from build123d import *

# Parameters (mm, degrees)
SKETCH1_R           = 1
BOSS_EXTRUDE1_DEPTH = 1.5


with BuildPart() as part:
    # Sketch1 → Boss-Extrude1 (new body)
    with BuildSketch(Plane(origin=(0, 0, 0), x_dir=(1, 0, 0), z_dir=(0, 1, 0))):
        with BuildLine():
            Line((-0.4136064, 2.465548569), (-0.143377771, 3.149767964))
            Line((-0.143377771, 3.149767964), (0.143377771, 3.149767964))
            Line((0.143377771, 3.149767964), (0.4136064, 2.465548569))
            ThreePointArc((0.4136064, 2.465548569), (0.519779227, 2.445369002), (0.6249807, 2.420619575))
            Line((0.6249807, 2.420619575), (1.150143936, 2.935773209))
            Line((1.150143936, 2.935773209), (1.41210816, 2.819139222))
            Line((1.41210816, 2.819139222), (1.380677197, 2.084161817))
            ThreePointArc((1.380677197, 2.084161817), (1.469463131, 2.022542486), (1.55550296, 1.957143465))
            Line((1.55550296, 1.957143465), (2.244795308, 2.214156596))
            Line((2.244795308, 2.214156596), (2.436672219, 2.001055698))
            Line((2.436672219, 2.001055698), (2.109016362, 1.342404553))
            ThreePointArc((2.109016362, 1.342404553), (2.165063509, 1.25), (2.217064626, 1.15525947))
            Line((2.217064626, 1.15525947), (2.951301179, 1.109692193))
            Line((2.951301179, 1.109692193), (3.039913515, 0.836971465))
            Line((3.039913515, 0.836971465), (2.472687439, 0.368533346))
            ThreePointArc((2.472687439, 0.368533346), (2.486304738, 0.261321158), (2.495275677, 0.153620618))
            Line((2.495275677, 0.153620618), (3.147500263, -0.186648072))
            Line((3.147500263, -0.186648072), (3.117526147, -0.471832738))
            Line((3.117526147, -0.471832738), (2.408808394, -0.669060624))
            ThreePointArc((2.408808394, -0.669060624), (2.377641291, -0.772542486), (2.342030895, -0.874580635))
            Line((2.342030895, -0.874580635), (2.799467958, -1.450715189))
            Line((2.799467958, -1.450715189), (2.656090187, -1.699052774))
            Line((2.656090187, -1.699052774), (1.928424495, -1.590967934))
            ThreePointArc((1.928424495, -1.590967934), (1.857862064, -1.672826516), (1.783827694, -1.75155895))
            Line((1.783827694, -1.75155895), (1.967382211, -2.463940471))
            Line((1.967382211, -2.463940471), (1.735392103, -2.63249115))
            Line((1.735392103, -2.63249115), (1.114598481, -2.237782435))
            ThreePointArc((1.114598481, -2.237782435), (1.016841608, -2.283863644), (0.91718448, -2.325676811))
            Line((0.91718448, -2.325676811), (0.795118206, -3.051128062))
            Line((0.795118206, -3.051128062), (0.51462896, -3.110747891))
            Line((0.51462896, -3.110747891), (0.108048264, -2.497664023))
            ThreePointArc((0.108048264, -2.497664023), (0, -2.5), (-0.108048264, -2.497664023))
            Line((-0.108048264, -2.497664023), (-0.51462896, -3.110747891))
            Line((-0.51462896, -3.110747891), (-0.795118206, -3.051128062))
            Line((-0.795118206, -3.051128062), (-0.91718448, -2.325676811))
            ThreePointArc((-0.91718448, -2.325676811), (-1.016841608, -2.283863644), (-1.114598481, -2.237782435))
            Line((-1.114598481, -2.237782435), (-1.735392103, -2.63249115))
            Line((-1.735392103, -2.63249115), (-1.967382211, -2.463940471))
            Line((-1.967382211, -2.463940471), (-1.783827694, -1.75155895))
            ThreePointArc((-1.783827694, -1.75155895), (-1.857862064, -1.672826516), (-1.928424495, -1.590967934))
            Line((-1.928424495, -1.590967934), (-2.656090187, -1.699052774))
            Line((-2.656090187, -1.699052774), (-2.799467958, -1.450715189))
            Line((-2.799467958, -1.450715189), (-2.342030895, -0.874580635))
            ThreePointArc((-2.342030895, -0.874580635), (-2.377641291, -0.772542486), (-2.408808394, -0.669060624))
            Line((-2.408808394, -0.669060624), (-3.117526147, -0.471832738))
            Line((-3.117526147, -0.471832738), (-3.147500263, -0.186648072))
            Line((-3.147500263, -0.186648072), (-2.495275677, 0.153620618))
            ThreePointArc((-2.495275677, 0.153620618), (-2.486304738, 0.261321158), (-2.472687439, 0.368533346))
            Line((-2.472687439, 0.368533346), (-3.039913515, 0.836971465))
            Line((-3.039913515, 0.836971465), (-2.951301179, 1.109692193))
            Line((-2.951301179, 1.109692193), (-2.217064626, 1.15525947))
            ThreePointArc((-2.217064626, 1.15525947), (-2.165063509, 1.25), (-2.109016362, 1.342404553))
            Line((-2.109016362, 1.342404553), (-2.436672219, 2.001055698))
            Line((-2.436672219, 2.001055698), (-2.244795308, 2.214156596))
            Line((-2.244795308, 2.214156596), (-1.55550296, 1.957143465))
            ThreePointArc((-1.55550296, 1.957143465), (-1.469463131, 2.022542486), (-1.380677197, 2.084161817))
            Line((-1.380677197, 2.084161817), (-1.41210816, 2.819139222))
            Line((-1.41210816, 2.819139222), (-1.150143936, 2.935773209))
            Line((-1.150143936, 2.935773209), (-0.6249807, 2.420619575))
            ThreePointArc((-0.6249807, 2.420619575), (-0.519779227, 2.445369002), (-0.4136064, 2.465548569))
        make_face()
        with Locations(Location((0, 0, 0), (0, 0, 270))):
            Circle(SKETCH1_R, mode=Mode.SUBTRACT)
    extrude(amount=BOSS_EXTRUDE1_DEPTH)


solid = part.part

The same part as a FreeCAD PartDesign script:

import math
import FreeCAD as App
import Part
import Sketcher
from FreeCAD import Vector
Q = App.Units.Quantity

doc = App.newDocument("Part")
body = doc.addObject("PartDesign::Body", "Body")

# Sketch on XZ plane
sketch1 = doc.addObject("Sketcher::SketchObject", "Sketch")
body.addObject(sketch1)
sketch1.AttachmentSupport = (doc.XZ_Plane, [""])
sketch1.MapMode = "FlatFace"
sketch1.addGeometry(Part.LineSegment(Vector(-0.143378, -3.149768, 0), Vector(-0.413606, -2.465549, 0)), False)
sketch1.addGeometry(Part.ArcOfCircle(Part.Circle(Vector(0, 0, 0), Vector(0, 0, 1), 2.5), math.radians(-104.477055), math.radians(-99.522945)), False)
sketch1.addGeometry(Part.LineSegment(Vector(-0.624981, -2.42062, 0), Vector(-1.150144, -2.935773, 0)), False)
sketch1.addGeometry(Part.LineSegment(Vector(-1.150144, -2.935773, 0), Vector(-1.412108, -2.819139, 0)), False)
sketch1.addGeometry(Part.LineSegment(Vector(-1.412108, -2.819139, 0), Vector(-1.380677, -2.084162, 0)), False)
sketch1.addGeometry(Part.ArcOfCircle(Part.Circle(Vector(0, 0, 0), Vector(0, 0, 1), 2.5), math.radians(-128.477055), math.radians(-123.522945)), False)
sketch1.addGeometry(Part.LineSegment(Vector(-1.555503, -1.957143, 0), Vector(-2.244795, -2.214157, 0)), False)
sketch1.addGeometry(Part.LineSegment(Vector(-2.244795, -2.214157, 0), Vector(-2.436672, -2.001056, 0)), False)
sketch1.addGeometry(Part.LineSegment(Vector(-2.436672, -2.001056, 0), Vector(-2.109016, -1.342405, 0)), False)
sketch1.addGeometry(Part.ArcOfCircle(Part.Circle(Vector(0, 0, 0), Vector(0, 0, 1), 2.5), math.radians(-152.477055), math.radians(-147.522945)), False)
sketch1.addGeometry(Part.LineSegment(Vector(-2.217065, -1.155259, 0), Vector(-2.951301, -1.109692, 0)), False)
sketch1.addGeometry(Part.LineSegment(Vector(-2.951301, -1.109692, 0), Vector(-3.039914, -0.836971, 0)), False)
sketch1.addGeometry(Part.LineSegment(Vector(-3.039914, -0.836971, 0), Vector(-2.472687, -0.368533, 0)), False)
sketch1.addGeometry(Part.ArcOfCircle(Part.Circle(Vector(0, 0, 0), Vector(0, 0, 1), 2.5), math.radians(-176.477055), math.radians(-171.522945)), False)
sketch1.addGeometry(Part.LineSegment(Vector(-2.495276, -0.153621, 0), Vector(-3.1475, 0.186648, 0)), False)
sketch1.addGeometry(Part.LineSegment(Vector(-3.1475, 0.186648, 0), Vector(-3.117526, 0.471833, 0)), False)
sketch1.addGeometry(Part.LineSegment(Vector(-3.117526, 0.471833, 0), Vector(-2.408808, 0.669061, 0)), False)
sketch1.addGeometry(Part.ArcOfCircle(Part.Circle(Vector(0, 0, 0), Vector(0, 0, 1), 2.499999), math.radians(159.522944), math.radians(164.477056)), False)
sketch1.addGeometry(Part.LineSegment(Vector(-2.342031, 0.874581, 0), Vector(-2.799468, 1.450715, 0)), False)
sketch1.addGeometry(Part.LineSegment(Vector(-2.799468, 1.450715, 0), Vector(-2.65609, 1.699053, 0)), False)
sketch1.addGeometry(Part.LineSegment(Vector(-2.65609, 1.699053, 0), Vector(-1.928424, 1.590968, 0)), False)
sketch1.addGeometry(Part.ArcOfCircle(Part.Circle(Vector(0, 0, 0), Vector(0, 0, 1), 2.499999), math.radians(135.522944), math.radians(140.477056)), False)
sketch1.addGeometry(Part.LineSegment(Vector(-1.783828, 1.751559, 0), Vector(-1.967382, 2.46394, 0)), False)
sketch1.addGeometry(Part.LineSegment(Vector(-1.967382, 2.46394, 0), Vector(-1.735392, 2.632491, 0)), False)
sketch1.addGeometry(Part.LineSegment(Vector(-1.735392, 2.632491, 0), Vector(-1.114598, 2.237782, 0)), False)
sketch1.addGeometry(Part.ArcOfCircle(Part.Circle(Vector(0, 0, 0), Vector(0, 0, 1), 2.5), math.radians(111.522945), math.radians(116.477055)), False)
sketch1.addGeometry(Part.LineSegment(Vector(-0.917184, 2.325677, 0), Vector(-0.795118, 3.051128, 0)), False)
sketch1.addGeometry(Part.LineSegment(Vector(-0.795118, 3.051128, 0), Vector(-0.514629, 3.110748, 0)), False)
sketch1.addGeometry(Part.LineSegment(Vector(-0.514629, 3.110748, 0), Vector(-0.108048, 2.497664, 0)), False)
sketch1.addGeometry(Part.ArcOfCircle(Part.Circle(Vector(0, 0, 0), Vector(0, 0, 1), 2.5), math.radians(87.522944), math.radians(92.477056)), False)
sketch1.addGeometry(Part.LineSegment(Vector(0.108048, 2.497664, 0), Vector(0.514629, 3.110748, 0)), False)
sketch1.addGeometry(Part.LineSegment(Vector(0.514629, 3.110748, 0), Vector(0.795118, 3.051128, 0)), False)
sketch1.addGeometry(Part.LineSegment(Vector(0.795118, 3.051128, 0), Vector(0.917184, 2.325677, 0)), False)
sketch1.addGeometry(Part.ArcOfCircle(Part.Circle(Vector(0, 0, 0), Vector(0, 0, 1), 2.5), math.radians(63.522945), math.radians(68.477055)), False)
sketch1.addGeometry(Part.LineSegment(Vector(1.114598, 2.237782, 0), Vector(1.735392, 2.632491, 0)), False)
sketch1.addGeometry(Part.LineSegment(Vector(1.735392, 2.632491, 0), Vector(1.967382, 2.46394, 0)), False)
sketch1.addGeometry(Part.LineSegment(Vector(1.967382, 2.46394, 0), Vector(1.783828, 1.751559, 0)), False)
sketch1.addGeometry(Part.ArcOfCircle(Part.Circle(Vector(0, 0, 0), Vector(0, 0, 1), 2.499999), math.radians(39.522944), math.radians(44.477056)), False)
sketch1.addGeometry(Part.LineSegment(Vector(1.928424, 1.590968, 0), Vector(2.65609, 1.699053, 0)), False)
sketch1.addGeometry(Part.LineSegment(Vector(2.65609, 1.699053, 0), Vector(2.799468, 1.450715, 0)), False)
sketch1.addGeometry(Part.LineSegment(Vector(2.799468, 1.450715, 0), Vector(2.342031, 0.874581, 0)), False)
sketch1.addGeometry(Part.ArcOfCircle(Part.Circle(Vector(0, 0, 0), Vector(0, 0, 1), 2.499999), math.radians(15.522944), math.radians(20.477056)), False)
sketch1.addGeometry(Part.LineSegment(Vector(2.408808, 0.669061, 0), Vector(3.117526, 0.471833, 0)), False)
sketch1.addGeometry(Part.LineSegment(Vector(3.117526, 0.471833, 0), Vector(3.1475, 0.186648, 0)), False)
sketch1.addGeometry(Part.LineSegment(Vector(3.1475, 0.186648, 0), Vector(2.495276, -0.153621, 0)), False)
sketch1.addGeometry(Part.ArcOfCircle(Part.Circle(Vector(0, 0, 0), Vector(0, 0, 1), 2.5), math.radians(-8.477055), math.radians(-3.522945)), False)
sketch1.addGeometry(Part.LineSegment(Vector(2.472687, -0.368533, 0), Vector(3.039914, -0.836971, 0)), False)
sketch1.addGeometry(Part.LineSegment(Vector(3.039914, -0.836971, 0), Vector(2.951301, -1.109692, 0)), False)
sketch1.addGeometry(Part.LineSegment(Vector(2.951301, -1.109692, 0), Vector(2.217065, -1.155259, 0)), False)
sketch1.addGeometry(Part.ArcOfCircle(Part.Circle(Vector(0, 0, 0), Vector(0, 0, 1), 2.5), math.radians(-32.477055), math.radians(-27.522945)), False)
sketch1.addGeometry(Part.LineSegment(Vector(2.109016, -1.342405, 0), Vector(2.436672, -2.001056, 0)), False)
sketch1.addGeometry(Part.LineSegment(Vector(2.436672, -2.001056, 0), Vector(2.244795, -2.214157, 0)), False)
sketch1.addGeometry(Part.LineSegment(Vector(2.244795, -2.214157, 0), Vector(1.555503, -1.957143, 0)), False)
sketch1.addGeometry(Part.ArcOfCircle(Part.Circle(Vector(0, 0, 0), Vector(0, 0, 1), 2.5), math.radians(-56.477055), math.radians(-51.522945)), False)
sketch1.addGeometry(Part.LineSegment(Vector(1.380677, -2.084162, 0), Vector(1.412108, -2.819139, 0)), False)
sketch1.addGeometry(Part.LineSegment(Vector(1.412108, -2.819139, 0), Vector(1.150144, -2.935773, 0)), False)
sketch1.addGeometry(Part.LineSegment(Vector(1.150144, -2.935773, 0), Vector(0.624981, -2.42062, 0)), False)
sketch1.addGeometry(Part.ArcOfCircle(Part.Circle(Vector(0, 0, 0), Vector(0, 0, 1), 2.5), math.radians(-80.477055), math.radians(-75.522945)), False)
sketch1.addGeometry(Part.LineSegment(Vector(0.413606, -2.465549, 0), Vector(0.143378, -3.149768, 0)), False)
sketch1.addGeometry(Part.LineSegment(Vector(0.143378, -3.149768, 0), Vector(-0.143378, -3.149768, 0)), False)
sketch1.addGeometry(Part.Circle(Vector(0, 0, 0), Vector(0, 0, 1), 1), False)
sketch1.addConstraint(Sketcher.Constraint("Coincident", 0, 2, 1, 2))
sketch1.addConstraint(Sketcher.Constraint("Coincident", 1, 1, 2, 1))
sketch1.addConstraint(Sketcher.Constraint("Coincident", 2, 2, 3, 1))
sketch1.addConstraint(Sketcher.Constraint("Coincident", 3, 2, 4, 1))
sketch1.addConstraint(Sketcher.Constraint("Coincident", 4, 2, 5, 2))
sketch1.addConstraint(Sketcher.Constraint("Coincident", 5, 1, 6, 1))
sketch1.addConstraint(Sketcher.Constraint("Coincident", 6, 2, 7, 1))
sketch1.addConstraint(Sketcher.Constraint("Coincident", 7, 2, 8, 1))
sketch1.addConstraint(Sketcher.Constraint("Coincident", 8, 2, 9, 2))
sketch1.addConstraint(Sketcher.Constraint("Coincident", 9, 1, 10, 1))
sketch1.addConstraint(Sketcher.Constraint("Coincident", 10, 2, 11, 1))
sketch1.addConstraint(Sketcher.Constraint("Coincident", 11, 2, 12, 1))
sketch1.addConstraint(Sketcher.Constraint("Coincident", 12, 2, 13, 2))
sketch1.addConstraint(Sketcher.Constraint("Coincident", 13, 1, 14, 1))
sketch1.addConstraint(Sketcher.Constraint("Coincident", 14, 2, 15, 1))
sketch1.addConstraint(Sketcher.Constraint("Coincident", 15, 2, 16, 1))
sketch1.addConstraint(Sketcher.Constraint("Coincident", 16, 2, 17, 2))
sketch1.addConstraint(Sketcher.Constraint("Coincident", 17, 1, 18, 1))
sketch1.addConstraint(Sketcher.Constraint("Coincident", 18, 2, 19, 1))
sketch1.addConstraint(Sketcher.Constraint("Coincident", 19, 2, 20, 1))
sketch1.addConstraint(Sketcher.Constraint("Coincident", 20, 2, 21, 2))
sketch1.addConstraint(Sketcher.Constraint("Coincident", 21, 1, 22, 1))
sketch1.addConstraint(Sketcher.Constraint("Coincident", 22, 2, 23, 1))
sketch1.addConstraint(Sketcher.Constraint("Coincident", 23, 2, 24, 1))
sketch1.addConstraint(Sketcher.Constraint("Coincident", 24, 2, 25, 2))
sketch1.addConstraint(Sketcher.Constraint("Coincident", 25, 1, 26, 1))
sketch1.addConstraint(Sketcher.Constraint("Coincident", 26, 2, 27, 1))
sketch1.addConstraint(Sketcher.Constraint("Coincident", 27, 2, 28, 1))
sketch1.addConstraint(Sketcher.Constraint("Coincident", 28, 2, 29, 2))
sketch1.addConstraint(Sketcher.Constraint("Coincident", 29, 1, 30, 1))
sketch1.addConstraint(Sketcher.Constraint("Coincident", 30, 2, 31, 1))
sketch1.addConstraint(Sketcher.Constraint("Coincident", 31, 2, 32, 1))
sketch1.addConstraint(Sketcher.Constraint("Coincident", 32, 2, 33, 2))
sketch1.addConstraint(Sketcher.Constraint("Coincident", 33, 1, 34, 1))
sketch1.addConstraint(Sketcher.Constraint("Coincident", 34, 2, 35, 1))
sketch1.addConstraint(Sketcher.Constraint("Coincident", 35, 2, 36, 1))
sketch1.addConstraint(Sketcher.Constraint("Coincident", 36, 2, 37, 2))
sketch1.addConstraint(Sketcher.Constraint("Coincident", 37, 1, 38, 1))
sketch1.addConstraint(Sketcher.Constraint("Coincident", 38, 2, 39, 1))
sketch1.addConstraint(Sketcher.Constraint("Coincident", 39, 2, 40, 1))
sketch1.addConstraint(Sketcher.Constraint("Coincident", 40, 2, 41, 2))
sketch1.addConstraint(Sketcher.Constraint("Coincident", 41, 1, 42, 1))
sketch1.addConstraint(Sketcher.Constraint("Coincident", 42, 2, 43, 1))
sketch1.addConstraint(Sketcher.Constraint("Coincident", 43, 2, 44, 1))
sketch1.addConstraint(Sketcher.Constraint("Coincident", 44, 2, 45, 2))
sketch1.addConstraint(Sketcher.Constraint("Coincident", 45, 1, 46, 1))
sketch1.addConstraint(Sketcher.Constraint("Coincident", 46, 2, 47, 1))
sketch1.addConstraint(Sketcher.Constraint("Coincident", 47, 2, 48, 1))
sketch1.addConstraint(Sketcher.Constraint("Coincident", 48, 2, 49, 2))
sketch1.addConstraint(Sketcher.Constraint("Coincident", 49, 1, 50, 1))
sketch1.addConstraint(Sketcher.Constraint("Coincident", 50, 2, 51, 1))
sketch1.addConstraint(Sketcher.Constraint("Coincident", 51, 2, 52, 1))
sketch1.addConstraint(Sketcher.Constraint("Coincident", 52, 2, 53, 2))
sketch1.addConstraint(Sketcher.Constraint("Coincident", 53, 1, 54, 1))
sketch1.addConstraint(Sketcher.Constraint("Coincident", 54, 2, 55, 1))
sketch1.addConstraint(Sketcher.Constraint("Coincident", 55, 2, 56, 1))
sketch1.addConstraint(Sketcher.Constraint("Coincident", 56, 2, 57, 2))
sketch1.addConstraint(Sketcher.Constraint("Coincident", 57, 1, 58, 1))
sketch1.addConstraint(Sketcher.Constraint("Coincident", 58, 2, 59, 1))
sketch1.addConstraint(Sketcher.Constraint("Coincident", 59, 2, 0, 1))
sketch1.addConstraint(Sketcher.Constraint("Horizontal", 59))
sketch1.addConstraint(Sketcher.Constraint("Coincident", 1, 3, -1, 1))
sketch1.addConstraint(Sketcher.Constraint("Coincident", 5, 3, -1, 1))
sketch1.addConstraint(Sketcher.Constraint("Coincident", 9, 3, -1, 1))
sketch1.addConstraint(Sketcher.Constraint("Coincident", 13, 3, -1, 1))
sketch1.addConstraint(Sketcher.Constraint("Coincident", 17, 3, -1, 1))
sketch1.addConstraint(Sketcher.Constraint("Coincident", 21, 3, -1, 1))
sketch1.addConstraint(Sketcher.Constraint("Coincident", 25, 3, -1, 1))
sketch1.addConstraint(Sketcher.Constraint("Coincident", 29, 3, -1, 1))
sketch1.addConstraint(Sketcher.Constraint("Coincident", 33, 3, -1, 1))
sketch1.addConstraint(Sketcher.Constraint("Coincident", 37, 3, -1, 1))
sketch1.addConstraint(Sketcher.Constraint("Coincident", 41, 3, -1, 1))
sketch1.addConstraint(Sketcher.Constraint("Coincident", 45, 3, -1, 1))
sketch1.addConstraint(Sketcher.Constraint("Coincident", 49, 3, -1, 1))
sketch1.addConstraint(Sketcher.Constraint("Coincident", 53, 3, -1, 1))
sketch1.addConstraint(Sketcher.Constraint("Coincident", 57, 3, -1, 1))
sketch1.addConstraint(Sketcher.Constraint("Coincident", 60, 3, -1, 1))
sketch1.addConstraint(Sketcher.Constraint("Equal", 1, 5))
sketch1.addConstraint(Sketcher.Constraint("Equal", 5, 9))
sketch1.addConstraint(Sketcher.Constraint("Equal", 9, 13))
sketch1.addConstraint(Sketcher.Constraint("Equal", 13, 17))
sketch1.addConstraint(Sketcher.Constraint("Equal", 17, 21))
sketch1.addConstraint(Sketcher.Constraint("Equal", 21, 25))
sketch1.addConstraint(Sketcher.Constraint("Equal", 25, 29))
sketch1.addConstraint(Sketcher.Constraint("Equal", 29, 33))
sketch1.addConstraint(Sketcher.Constraint("Equal", 33, 37))
sketch1.addConstraint(Sketcher.Constraint("Equal", 37, 41))
sketch1.addConstraint(Sketcher.Constraint("Equal", 41, 45))
sketch1.addConstraint(Sketcher.Constraint("Equal", 45, 49))
sketch1.addConstraint(Sketcher.Constraint("Equal", 49, 53))
sketch1.addConstraint(Sketcher.Constraint("Equal", 53, 57))
sketch1.addConstraint(Sketcher.Constraint("Symmetric", 27, 2, 30, 2, -2))
sketch1.addConstraint(Sketcher.Constraint("Symmetric", 26, 2, 31, 2, -2))
sketch1.addConstraint(Sketcher.Constraint("Symmetric", 23, 2, 34, 2, -2))
sketch1.addConstraint(Sketcher.Constraint("Symmetric", 22, 2, 35, 2, -2))
sketch1.addConstraint(Sketcher.Constraint("Symmetric", 19, 2, 38, 2, -2))
sketch1.addConstraint(Sketcher.Constraint("Symmetric", 18, 2, 39, 2, -2))
sketch1.addConstraint(Sketcher.Constraint("Symmetric", 15, 2, 42, 2, -2))
sketch1.addConstraint(Sketcher.Constraint("Symmetric", 14, 2, 43, 2, -2))
sketch1.addConstraint(Sketcher.Constraint("Symmetric", 11, 2, 46, 2, -2))
sketch1.addConstraint(Sketcher.Constraint("Symmetric", 10, 2, 47, 2, -2))
sketch1.addConstraint(Sketcher.Constraint("Symmetric", 7, 2, 50, 2, -2))
sketch1.addConstraint(Sketcher.Constraint("Symmetric", 6, 2, 51, 2, -2))
sketch1.addConstraint(Sketcher.Constraint("Symmetric", 3, 2, 54, 2, -2))
sketch1.addConstraint(Sketcher.Constraint("Symmetric", 2, 2, 55, 2, -2))
sketch1.addConstraint(Sketcher.Constraint("Horizontal", 28, 2, 29, 1))
sketch1.addConstraint(Sketcher.Constraint("Horizontal", 25, 1, 32, 2))
sketch1.addConstraint(Sketcher.Constraint("Horizontal", 24, 2, 33, 1))
sketch1.addConstraint(Sketcher.Constraint("Horizontal", 21, 1, 36, 2))
sketch1.addConstraint(Sketcher.Constraint("Horizontal", 20, 2, 37, 1))
sketch1.addConstraint(Sketcher.Constraint("Horizontal", 17, 1, 40, 2))
sketch1.addConstraint(Sketcher.Constraint("Horizontal", 16, 2, 41, 1))
sketch1.addConstraint(Sketcher.Constraint("Horizontal", 13, 1, 44, 2))
sketch1.addConstraint(Sketcher.Constraint("Horizontal", 12, 2, 45, 1))
sketch1.addConstraint(Sketcher.Constraint("Horizontal", 9, 1, 48, 2))
sketch1.addConstraint(Sketcher.Constraint("Horizontal", 8, 2, 49, 1))
sketch1.addConstraint(Sketcher.Constraint("Horizontal", 5, 1, 52, 2))
sketch1.addConstraint(Sketcher.Constraint("Horizontal", 4, 2, 53, 1))
sketch1.addConstraint(Sketcher.Constraint("Horizontal", 1, 1, 56, 2))
sketch1.addConstraint(Sketcher.Constraint("Horizontal", 0, 2, 57, 1))
sketch1.addConstraint(Sketcher.Constraint("Equal", 0, 2))
sketch1.addConstraint(Sketcher.Constraint("Equal", 2, 4))
sketch1.addConstraint(Sketcher.Constraint("Equal", 4, 6))
sketch1.addConstraint(Sketcher.Constraint("Equal", 3, 7))
sketch1.addConstraint(Sketcher.Constraint("Equal", 6, 8))
sketch1.addConstraint(Sketcher.Constraint("Equal", 8, 10))
sketch1.addConstraint(Sketcher.Constraint("Equal", 7, 11))
sketch1.addConstraint(Sketcher.Constraint("Equal", 10, 12))
sketch1.addConstraint(Sketcher.Constraint("Equal", 12, 14))
sketch1.addConstraint(Sketcher.Constraint("Equal", 11, 15))
sketch1.addConstraint(Sketcher.Constraint("Equal", 14, 16))
sketch1.addConstraint(Sketcher.Constraint("Equal", 16, 18))
sketch1.addConstraint(Sketcher.Constraint("Equal", 15, 19))
sketch1.addConstraint(Sketcher.Constraint("Equal", 18, 20))
sketch1.addConstraint(Sketcher.Constraint("Equal", 20, 22))
sketch1.addConstraint(Sketcher.Constraint("Equal", 19, 23))
sketch1.addConstraint(Sketcher.Constraint("Equal", 22, 24))
sketch1.addConstraint(Sketcher.Constraint("Equal", 24, 26))
sketch1.addConstraint(Sketcher.Constraint("Equal", 23, 27))
sketch1.addConstraint(Sketcher.Constraint("Equal", 26, 28))
sketch1.addConstraint(Sketcher.Constraint("Equal", 56, 58))
sketch1.addConstraint(Sketcher.Constraint("Diameter", 60, 2.0))
sketch1.addConstraint(Sketcher.Constraint("Radius", 1, 2.5))
sketch1.addConstraint(Sketcher.Constraint("Angle", 3, Q("156 deg")))
sketch1.addConstraint(Sketcher.Constraint("Angle", 7, Q("132 deg")))
sketch1.addConstraint(Sketcher.Constraint("Angle", 11, Q("108 deg")))
sketch1.addConstraint(Sketcher.Constraint("Angle", 15, Q("84 deg")))
sketch1.addConstraint(Sketcher.Constraint("Angle", 19, Q("60 deg")))
sketch1.addConstraint(Sketcher.Constraint("Angle", 23, Q("36 deg")))
sketch1.addConstraint(Sketcher.Constraint("Angle", 27, Q("12 deg")))
sketch1.addConstraint(Sketcher.Constraint("DistanceX", 10, 2, -1, 1, 2.951301))
sketch1.addConstraint(Sketcher.Constraint("DistanceX", 14, 2, -1, 1, 3.1475))
sketch1.addConstraint(Sketcher.Constraint("DistanceX", 24, 2, -1, 1, 1.114598))
sketch1.addConstraint(Sketcher.Constraint("Distance", 0, 0.735649))
sketch1.addConstraint(Sketcher.Constraint("DistanceX", 59, 2, 59, 1, 0.286756))
sketch1.addConstraint(Sketcher.Constraint("DistanceY", 0, 2, -1, 1, 2.465549))
sketch1.addConstraint(Sketcher.Constraint("DistanceX", 1, 1, -1, 1, 0.624981))
sketch1.addConstraint(Sketcher.Constraint("DistanceX", 3, 2, -1, 1, 1.412108))
sketch1.addConstraint(Sketcher.Constraint("DistanceY", 3, 2, -1, 1, 2.819139))
sketch1.addConstraint(Sketcher.Constraint("DistanceY", 9, 1, -1, 1, 1.155259))
sketch1.addConstraint(Sketcher.Constraint("DistanceY", 13, 1, -1, 1, 0.153621))
sketch1.addConstraint(Sketcher.Constraint("DistanceX", 17, 1, -1, 1, 2.342031))
sketch1.addConstraint(Sketcher.Constraint("DistanceX", 19, 2, -1, 1, 2.65609))
sketch1.addConstraint(Sketcher.Constraint("DistanceY", -1, 1, 21, 1, 1.751559))
sketch1.addConstraint(Sketcher.Constraint("DistanceX", 26, 2, -1, 1, 0.795118))
sketch1.addConstraint(Sketcher.Constraint("DistanceY", -1, 1, 26, 2, 3.051128))
sketch1.addConstraint(Sketcher.Constraint("DistanceX", 5, 1, -1, 1, 1.555503))
sketch1.addConstraint(Sketcher.Constraint("DistanceX", 6, 2, -1, 1, 2.244795))
pad1 = doc.addObject("PartDesign::Pad", "Pad")
body.addObject(pad1)
pad1.Profile = sketch1
pad1.Length = 1.5
pad1.Reversed = True

doc.recompute()
